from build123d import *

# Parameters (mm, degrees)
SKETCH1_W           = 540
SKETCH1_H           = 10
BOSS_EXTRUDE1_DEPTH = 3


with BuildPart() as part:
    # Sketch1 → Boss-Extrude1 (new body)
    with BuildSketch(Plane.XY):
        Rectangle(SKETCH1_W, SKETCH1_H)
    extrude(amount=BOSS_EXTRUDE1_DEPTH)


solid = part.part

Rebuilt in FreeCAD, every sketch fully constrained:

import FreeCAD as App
import Part
import Sketcher
Q = App.Units.Quantity

doc = App.newDocument("Part")
body = doc.addObject("PartDesign::Body", "Body")

# Sketch on XY plane
sketch1 = body.newObject("Sketcher::SketchObject", "Sketch")
sketch1.AttachmentSupport = (doc.getObject("XY_Plane"), [""])
sketch1.MapMode = "FlatFace"
sketch1.addGeometry(Part.LineSegment(App.Vector(-270, 5, 0), App.Vector(-270, -5, 0)), False)
sketch1.addGeometry(Part.LineSegment(App.Vector(-270, -5, 0), App.Vector(270, -5, 0)), False)
sketch1.addGeometry(Part.LineSegment(App.Vector(270, -5, 0), App.Vector(270, 5, 0)), False)
sketch1.addGeometry(Part.LineSegment(App.Vector(270, 5, 0), App.Vector(-270, 5, 0)), False)
sketch1.addConstraint(Sketcher.Constraint("Coincident", 0, 2, 1, 1))
sketch1.addConstraint(Sketcher.Constraint("Coincident", 1, 2, 2, 1))
sketch1.addConstraint(Sketcher.Constraint("Coincident", 2, 2, 3, 1))
sketch1.addConstraint(Sketcher.Constraint("Coincident", 3, 2, 0, 1))
sketch1.addConstraint(Sketcher.Constraint("Vertical", 0))
sketch1.addConstraint(Sketcher.Constraint("Horizontal", 1))
sketch1.addConstraint(Sketcher.Constraint("Vertical", 2))
sketch1.addConstraint(Sketcher.Constraint("Horizontal", 3))
sketch1.addConstraint(Sketcher.Constraint("Symmetric", 0, 2, 2, 2, -1, 1))
sketch1.addConstraint(Sketcher.Constraint("DistanceX", 1, 1, 1, 2, Q("540 mm")))
sketch1.addConstraint(Sketcher.Constraint("DistanceY", 0, 2, 0, 1, Q("10 mm")))
pad1 = body.newObject("PartDesign::Pad", "Pad")
pad1.Profile = sketch1
pad1.Length = 3

doc.recompute()
